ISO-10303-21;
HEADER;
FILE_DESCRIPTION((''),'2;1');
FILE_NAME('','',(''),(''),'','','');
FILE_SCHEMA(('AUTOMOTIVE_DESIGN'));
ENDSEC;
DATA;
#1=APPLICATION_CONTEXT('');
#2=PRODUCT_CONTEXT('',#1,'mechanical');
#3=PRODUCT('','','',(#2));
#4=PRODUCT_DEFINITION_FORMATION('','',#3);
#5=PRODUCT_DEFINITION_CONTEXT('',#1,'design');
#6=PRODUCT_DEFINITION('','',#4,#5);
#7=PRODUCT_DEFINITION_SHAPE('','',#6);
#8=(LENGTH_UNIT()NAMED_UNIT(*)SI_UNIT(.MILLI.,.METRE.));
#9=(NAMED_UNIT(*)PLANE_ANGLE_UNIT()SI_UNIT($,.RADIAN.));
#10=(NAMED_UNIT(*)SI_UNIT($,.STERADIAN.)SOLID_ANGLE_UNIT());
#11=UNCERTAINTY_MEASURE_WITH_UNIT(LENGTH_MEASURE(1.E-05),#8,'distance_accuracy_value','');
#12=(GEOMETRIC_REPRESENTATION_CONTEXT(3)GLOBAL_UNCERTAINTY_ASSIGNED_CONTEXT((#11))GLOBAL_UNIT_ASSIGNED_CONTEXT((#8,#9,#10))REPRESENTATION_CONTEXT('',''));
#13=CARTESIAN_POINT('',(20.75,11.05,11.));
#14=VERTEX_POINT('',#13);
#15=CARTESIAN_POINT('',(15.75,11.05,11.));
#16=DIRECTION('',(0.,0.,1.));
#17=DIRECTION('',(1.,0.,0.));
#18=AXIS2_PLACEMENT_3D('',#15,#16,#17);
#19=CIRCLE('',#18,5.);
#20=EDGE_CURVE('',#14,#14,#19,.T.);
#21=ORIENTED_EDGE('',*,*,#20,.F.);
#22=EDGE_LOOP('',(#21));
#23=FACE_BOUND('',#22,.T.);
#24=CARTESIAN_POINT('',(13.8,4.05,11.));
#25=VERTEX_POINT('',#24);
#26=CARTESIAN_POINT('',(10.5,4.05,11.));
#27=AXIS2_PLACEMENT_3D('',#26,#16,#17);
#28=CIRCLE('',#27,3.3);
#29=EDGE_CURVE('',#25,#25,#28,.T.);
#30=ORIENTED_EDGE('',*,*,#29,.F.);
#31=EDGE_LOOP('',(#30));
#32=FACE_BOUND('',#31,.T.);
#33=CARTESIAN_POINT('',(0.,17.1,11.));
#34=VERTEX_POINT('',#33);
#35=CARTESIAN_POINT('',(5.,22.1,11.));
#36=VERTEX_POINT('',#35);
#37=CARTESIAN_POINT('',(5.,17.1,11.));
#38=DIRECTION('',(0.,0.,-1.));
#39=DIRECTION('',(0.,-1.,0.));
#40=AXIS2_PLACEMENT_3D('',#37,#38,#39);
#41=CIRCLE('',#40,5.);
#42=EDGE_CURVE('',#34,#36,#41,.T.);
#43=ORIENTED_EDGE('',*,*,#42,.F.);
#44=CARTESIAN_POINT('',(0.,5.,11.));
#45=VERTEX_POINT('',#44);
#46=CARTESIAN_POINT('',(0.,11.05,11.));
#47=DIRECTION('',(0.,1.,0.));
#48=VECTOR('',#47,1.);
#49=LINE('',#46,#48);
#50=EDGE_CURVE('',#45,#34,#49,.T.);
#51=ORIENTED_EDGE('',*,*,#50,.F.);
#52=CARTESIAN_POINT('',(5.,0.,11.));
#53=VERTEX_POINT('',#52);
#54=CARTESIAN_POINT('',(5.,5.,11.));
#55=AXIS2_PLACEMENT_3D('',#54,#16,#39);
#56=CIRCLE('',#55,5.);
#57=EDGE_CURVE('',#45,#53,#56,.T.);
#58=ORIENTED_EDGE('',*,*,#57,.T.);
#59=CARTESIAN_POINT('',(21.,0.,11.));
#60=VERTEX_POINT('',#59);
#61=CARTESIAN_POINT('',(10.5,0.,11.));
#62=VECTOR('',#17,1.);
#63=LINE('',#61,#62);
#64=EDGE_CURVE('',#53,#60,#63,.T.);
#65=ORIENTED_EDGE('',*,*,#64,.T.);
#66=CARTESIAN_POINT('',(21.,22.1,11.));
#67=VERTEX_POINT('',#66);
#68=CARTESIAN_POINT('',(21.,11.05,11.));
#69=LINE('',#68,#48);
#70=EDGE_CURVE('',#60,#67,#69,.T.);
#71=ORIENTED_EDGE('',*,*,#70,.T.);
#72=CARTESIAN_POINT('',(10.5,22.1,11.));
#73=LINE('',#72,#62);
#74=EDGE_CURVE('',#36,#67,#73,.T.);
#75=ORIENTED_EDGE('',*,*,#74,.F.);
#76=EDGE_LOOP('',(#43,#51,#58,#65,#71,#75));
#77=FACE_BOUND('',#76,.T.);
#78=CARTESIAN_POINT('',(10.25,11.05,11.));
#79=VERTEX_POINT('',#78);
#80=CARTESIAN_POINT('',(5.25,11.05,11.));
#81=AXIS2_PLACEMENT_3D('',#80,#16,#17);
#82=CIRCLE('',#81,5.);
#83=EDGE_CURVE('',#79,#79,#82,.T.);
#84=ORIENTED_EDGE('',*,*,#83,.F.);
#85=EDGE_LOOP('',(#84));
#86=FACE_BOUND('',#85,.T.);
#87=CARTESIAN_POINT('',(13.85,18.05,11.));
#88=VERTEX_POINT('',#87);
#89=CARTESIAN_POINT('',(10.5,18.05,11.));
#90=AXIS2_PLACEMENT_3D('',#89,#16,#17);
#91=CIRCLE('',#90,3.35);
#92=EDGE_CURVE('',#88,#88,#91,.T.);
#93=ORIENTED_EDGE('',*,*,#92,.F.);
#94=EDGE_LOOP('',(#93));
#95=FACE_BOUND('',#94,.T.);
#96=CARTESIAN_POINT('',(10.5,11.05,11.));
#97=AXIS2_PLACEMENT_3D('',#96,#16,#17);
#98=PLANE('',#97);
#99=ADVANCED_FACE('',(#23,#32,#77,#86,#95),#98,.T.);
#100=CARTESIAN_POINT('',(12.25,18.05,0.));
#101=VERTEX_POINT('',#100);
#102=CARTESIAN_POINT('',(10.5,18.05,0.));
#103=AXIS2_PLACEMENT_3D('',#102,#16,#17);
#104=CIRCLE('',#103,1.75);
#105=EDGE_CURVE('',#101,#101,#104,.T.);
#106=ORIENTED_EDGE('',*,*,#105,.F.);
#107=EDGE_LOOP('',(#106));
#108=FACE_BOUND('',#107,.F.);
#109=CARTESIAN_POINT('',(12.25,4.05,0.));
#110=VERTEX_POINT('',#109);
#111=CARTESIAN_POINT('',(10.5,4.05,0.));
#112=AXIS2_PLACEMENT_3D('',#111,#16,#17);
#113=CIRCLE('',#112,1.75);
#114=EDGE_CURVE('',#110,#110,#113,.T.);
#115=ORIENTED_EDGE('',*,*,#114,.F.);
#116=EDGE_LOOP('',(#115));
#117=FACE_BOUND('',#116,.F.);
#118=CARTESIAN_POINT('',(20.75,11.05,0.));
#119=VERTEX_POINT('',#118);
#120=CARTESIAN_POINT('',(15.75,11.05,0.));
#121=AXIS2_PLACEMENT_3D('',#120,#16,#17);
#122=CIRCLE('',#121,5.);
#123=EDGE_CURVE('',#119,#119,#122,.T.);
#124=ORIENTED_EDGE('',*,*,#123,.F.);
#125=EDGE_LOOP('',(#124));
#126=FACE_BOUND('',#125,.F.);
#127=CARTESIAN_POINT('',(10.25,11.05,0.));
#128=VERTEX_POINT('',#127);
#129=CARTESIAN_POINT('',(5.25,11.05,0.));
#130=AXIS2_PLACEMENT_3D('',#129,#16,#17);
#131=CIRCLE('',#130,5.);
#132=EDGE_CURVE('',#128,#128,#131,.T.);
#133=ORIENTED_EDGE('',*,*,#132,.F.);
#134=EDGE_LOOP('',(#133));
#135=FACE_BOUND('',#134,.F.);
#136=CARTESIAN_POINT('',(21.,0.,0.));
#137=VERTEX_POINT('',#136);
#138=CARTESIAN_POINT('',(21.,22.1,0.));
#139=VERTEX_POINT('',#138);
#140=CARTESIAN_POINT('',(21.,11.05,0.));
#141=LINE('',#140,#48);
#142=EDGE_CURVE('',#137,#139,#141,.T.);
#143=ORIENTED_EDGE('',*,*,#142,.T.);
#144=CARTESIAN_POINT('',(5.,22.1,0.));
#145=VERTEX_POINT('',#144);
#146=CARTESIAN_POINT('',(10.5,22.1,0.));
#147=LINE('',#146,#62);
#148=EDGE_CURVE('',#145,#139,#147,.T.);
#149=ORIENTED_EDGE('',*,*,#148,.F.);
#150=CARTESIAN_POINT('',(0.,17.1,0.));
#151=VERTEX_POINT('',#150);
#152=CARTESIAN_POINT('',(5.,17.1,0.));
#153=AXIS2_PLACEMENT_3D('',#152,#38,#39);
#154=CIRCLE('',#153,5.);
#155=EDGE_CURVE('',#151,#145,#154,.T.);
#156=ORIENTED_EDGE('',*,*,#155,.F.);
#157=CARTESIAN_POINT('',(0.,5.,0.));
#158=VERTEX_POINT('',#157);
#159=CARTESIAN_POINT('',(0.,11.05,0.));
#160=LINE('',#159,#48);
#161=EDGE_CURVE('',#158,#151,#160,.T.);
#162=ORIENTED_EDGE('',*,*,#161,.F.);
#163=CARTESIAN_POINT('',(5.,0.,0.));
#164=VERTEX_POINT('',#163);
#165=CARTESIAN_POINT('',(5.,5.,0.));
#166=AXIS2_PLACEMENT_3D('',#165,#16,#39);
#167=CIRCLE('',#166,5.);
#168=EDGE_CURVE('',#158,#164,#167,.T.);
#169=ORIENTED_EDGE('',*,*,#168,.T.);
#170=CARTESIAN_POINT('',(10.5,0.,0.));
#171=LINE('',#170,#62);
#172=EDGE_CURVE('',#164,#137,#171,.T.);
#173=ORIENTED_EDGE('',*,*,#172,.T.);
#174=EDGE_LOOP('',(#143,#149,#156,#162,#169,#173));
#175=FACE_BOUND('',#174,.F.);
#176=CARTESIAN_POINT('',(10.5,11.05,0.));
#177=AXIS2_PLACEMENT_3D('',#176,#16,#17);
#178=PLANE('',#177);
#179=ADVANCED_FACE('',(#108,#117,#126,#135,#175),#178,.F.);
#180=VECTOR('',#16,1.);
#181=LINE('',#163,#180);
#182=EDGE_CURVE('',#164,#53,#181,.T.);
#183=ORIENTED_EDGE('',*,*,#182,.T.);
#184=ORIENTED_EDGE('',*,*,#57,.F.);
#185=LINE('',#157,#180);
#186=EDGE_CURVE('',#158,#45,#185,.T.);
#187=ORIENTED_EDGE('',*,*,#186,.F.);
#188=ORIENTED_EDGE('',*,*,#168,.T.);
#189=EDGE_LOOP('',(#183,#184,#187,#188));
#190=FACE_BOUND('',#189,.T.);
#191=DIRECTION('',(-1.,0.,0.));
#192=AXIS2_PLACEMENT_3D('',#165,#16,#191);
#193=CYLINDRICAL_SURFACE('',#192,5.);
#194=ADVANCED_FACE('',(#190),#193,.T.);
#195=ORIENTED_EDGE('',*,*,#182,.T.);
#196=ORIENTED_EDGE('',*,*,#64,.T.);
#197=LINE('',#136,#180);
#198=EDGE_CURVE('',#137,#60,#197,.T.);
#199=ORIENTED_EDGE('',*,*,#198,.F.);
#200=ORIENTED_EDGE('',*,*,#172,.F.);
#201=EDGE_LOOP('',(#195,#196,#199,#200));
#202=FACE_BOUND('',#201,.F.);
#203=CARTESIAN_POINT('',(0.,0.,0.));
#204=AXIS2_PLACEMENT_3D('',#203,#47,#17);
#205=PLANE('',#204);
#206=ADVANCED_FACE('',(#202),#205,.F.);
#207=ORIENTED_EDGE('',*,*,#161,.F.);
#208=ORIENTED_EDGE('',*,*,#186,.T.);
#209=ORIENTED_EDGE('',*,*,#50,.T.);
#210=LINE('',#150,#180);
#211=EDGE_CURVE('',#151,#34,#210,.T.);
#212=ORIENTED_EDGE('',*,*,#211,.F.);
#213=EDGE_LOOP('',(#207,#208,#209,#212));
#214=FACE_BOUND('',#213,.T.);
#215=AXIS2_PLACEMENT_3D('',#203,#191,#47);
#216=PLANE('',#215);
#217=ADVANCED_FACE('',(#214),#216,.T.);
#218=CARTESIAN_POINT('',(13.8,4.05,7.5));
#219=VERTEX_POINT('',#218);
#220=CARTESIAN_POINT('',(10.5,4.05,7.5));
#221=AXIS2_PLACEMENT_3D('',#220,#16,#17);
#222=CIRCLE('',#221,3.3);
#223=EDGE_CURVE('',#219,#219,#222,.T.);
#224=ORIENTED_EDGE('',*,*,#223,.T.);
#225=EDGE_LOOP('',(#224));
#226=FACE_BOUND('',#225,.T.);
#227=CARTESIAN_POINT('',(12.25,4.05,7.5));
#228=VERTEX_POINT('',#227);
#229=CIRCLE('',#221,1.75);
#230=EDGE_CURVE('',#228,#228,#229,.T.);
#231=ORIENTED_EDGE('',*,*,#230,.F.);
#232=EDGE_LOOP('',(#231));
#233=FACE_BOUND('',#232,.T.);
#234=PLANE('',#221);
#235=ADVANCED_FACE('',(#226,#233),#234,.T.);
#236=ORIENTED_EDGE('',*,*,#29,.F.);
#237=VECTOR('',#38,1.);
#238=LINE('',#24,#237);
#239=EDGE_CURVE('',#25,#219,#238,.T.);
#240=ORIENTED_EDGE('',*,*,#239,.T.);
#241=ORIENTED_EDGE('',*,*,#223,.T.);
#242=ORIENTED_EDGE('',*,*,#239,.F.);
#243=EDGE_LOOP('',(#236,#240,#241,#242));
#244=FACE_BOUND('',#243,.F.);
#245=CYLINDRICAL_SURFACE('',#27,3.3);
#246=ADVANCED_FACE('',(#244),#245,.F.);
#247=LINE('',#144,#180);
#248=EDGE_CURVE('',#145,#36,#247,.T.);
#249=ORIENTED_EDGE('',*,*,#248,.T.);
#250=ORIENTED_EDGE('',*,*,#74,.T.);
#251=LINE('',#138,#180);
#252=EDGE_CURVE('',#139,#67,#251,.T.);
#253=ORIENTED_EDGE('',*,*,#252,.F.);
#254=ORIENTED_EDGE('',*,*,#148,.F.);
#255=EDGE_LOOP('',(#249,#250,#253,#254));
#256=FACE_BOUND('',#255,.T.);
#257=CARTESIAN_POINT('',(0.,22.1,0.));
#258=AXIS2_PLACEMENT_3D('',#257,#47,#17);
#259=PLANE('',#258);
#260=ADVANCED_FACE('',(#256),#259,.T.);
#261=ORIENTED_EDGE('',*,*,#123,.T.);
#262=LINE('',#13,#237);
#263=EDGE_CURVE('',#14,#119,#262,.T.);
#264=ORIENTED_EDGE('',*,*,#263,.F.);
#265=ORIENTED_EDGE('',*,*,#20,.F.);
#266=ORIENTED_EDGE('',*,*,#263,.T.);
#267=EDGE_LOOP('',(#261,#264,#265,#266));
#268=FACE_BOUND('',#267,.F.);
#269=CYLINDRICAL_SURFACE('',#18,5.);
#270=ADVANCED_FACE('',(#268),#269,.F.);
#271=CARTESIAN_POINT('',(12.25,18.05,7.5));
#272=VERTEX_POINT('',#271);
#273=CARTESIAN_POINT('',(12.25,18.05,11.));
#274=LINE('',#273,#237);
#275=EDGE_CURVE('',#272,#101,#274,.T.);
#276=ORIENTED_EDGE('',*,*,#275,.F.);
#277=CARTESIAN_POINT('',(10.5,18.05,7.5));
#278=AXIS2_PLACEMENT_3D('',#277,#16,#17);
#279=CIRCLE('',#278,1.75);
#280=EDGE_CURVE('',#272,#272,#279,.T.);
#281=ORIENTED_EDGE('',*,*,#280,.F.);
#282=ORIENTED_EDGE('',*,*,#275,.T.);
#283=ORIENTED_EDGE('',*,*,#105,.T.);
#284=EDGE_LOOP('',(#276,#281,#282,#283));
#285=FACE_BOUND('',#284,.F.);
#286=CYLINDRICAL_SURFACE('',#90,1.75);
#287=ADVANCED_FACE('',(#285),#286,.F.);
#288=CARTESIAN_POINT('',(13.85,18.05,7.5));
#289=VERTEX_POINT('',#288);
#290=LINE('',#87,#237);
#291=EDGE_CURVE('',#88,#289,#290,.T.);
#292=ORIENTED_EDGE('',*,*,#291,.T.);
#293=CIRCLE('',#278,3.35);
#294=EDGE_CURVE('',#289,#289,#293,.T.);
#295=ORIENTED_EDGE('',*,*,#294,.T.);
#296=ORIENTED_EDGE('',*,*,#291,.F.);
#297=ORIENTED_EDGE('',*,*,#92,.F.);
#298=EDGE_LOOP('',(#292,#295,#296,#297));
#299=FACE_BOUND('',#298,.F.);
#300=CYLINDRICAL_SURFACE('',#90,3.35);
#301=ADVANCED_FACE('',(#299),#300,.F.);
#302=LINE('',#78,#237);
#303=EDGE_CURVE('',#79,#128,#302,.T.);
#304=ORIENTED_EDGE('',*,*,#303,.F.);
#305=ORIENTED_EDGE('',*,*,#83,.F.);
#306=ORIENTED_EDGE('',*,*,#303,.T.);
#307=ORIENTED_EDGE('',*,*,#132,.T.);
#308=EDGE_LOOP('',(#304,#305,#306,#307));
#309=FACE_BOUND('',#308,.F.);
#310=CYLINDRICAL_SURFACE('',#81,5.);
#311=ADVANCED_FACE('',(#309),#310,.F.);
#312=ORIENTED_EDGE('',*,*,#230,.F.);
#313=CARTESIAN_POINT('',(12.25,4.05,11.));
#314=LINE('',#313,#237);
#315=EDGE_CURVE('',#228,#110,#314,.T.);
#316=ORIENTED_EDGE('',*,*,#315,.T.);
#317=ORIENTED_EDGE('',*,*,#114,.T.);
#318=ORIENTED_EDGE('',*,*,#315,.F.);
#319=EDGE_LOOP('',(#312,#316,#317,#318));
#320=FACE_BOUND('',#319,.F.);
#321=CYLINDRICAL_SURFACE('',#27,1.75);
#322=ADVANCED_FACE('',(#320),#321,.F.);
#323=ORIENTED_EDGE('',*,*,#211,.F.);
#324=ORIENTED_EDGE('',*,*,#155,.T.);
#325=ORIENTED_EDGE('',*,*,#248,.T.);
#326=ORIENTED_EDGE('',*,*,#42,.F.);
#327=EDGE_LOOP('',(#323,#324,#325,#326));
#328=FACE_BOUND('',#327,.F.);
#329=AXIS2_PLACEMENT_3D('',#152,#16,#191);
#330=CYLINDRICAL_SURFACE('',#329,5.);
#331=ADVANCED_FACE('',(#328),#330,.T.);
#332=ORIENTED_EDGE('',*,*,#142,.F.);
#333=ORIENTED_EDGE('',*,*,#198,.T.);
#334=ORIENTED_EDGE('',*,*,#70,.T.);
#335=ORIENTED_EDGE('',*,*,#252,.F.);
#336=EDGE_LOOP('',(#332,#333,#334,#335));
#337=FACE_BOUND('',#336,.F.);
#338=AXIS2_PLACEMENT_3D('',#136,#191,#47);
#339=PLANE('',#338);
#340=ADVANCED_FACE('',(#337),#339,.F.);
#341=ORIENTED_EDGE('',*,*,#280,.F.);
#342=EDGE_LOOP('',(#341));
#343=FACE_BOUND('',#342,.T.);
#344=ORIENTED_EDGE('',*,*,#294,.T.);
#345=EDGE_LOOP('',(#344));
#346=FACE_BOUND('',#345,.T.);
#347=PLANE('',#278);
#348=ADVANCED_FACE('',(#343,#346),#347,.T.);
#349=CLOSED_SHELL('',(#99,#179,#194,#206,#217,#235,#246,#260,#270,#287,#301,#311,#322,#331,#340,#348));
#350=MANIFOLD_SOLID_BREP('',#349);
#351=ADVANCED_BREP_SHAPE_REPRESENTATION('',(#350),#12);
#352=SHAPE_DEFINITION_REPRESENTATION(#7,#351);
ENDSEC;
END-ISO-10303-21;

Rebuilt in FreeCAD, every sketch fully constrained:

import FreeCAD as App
import Part
import Sketcher


def edges_at(feature, points):
    """Names of the edges that pass closest to the given points."""
    edges = feature.Shape.Edges
    near = lambda p: min(range(len(edges)), key=lambda i: edges[i].distToShape(Part.Vertex(*p))[0])
    return sorted({f"Edge{near(p) + 1}" for p in points})

doc = App.newDocument("Part")
body = doc.addObject("PartDesign::Body", "Body")

sketch1 = body.newObject("Sketcher::SketchObject", "Sketch")
sketch1.AttachmentSupport = (doc.getObject("XY_Plane"), [""])
sketch1.MapMode = "FlatFace"
sketch1.addGeometry([
    Part.LineSegment(App.Vector(0, 22, 0), App.Vector(0, 0, 0)),
    Part.LineSegment(App.Vector(0, 0, 0), App.Vector(21, 0, 0)),
    Part.LineSegment(App.Vector(21, 0, 0), App.Vector(21, 22, 0)),
    Part.LineSegment(App.Vector(21, 22, 0), App.Vector(0, 22, 0)),
], False)
sketch1.addConstraint([
    Sketcher.Constraint("Coincident", 0, 2, 1, 1),
    Sketcher.Constraint("Coincident", 1, 2, 2, 1),
    Sketcher.Constraint("Coincident", 2, 2, 3, 1),
    Sketcher.Constraint("Coincident", 3, 2, 0, 1),
    Sketcher.Constraint("Vertical", 0),
    Sketcher.Constraint("Horizontal", 1),
    Sketcher.Constraint("Vertical", 2),
    Sketcher.Constraint("Horizontal", 3),
    Sketcher.Constraint("Coincident", 0, 2, -1, 1),
    Sketcher.Constraint("DistanceX", 1, 1, 1, 2, 21.0),
    Sketcher.Constraint("DistanceY", 0, 2, 0, 1, 22.1),
])
pad1 = body.newObject("PartDesign::Pad", "Pad")
pad1.Profile = sketch1
pad1.Length = 11

sketch2 = body.newObject("Sketcher::SketchObject", "Sketch001")
sketch2.AttachmentSupport = (doc.getObject("XY_Plane"), [""])
sketch2.MapMode = "FlatFace"
sketch2.AttachmentOffset = App.Placement(App.Vector(0, 0, 11), App.Rotation())
sketch2.addGeometry([
    Part.Circle(App.Vector(10.5, 18.1, 0), App.Vector(0, 0, 1), 1.8),
    Part.Circle(App.Vector(10.5, 4, 0), App.Vector(0, 0, 1), 1.8),
], False)
sketch2.addConstraint([
    Sketcher.Constraint("Equal", 0, 1),
    Sketcher.Constraint("Vertical", 0, 3, 1, 3),
    Sketcher.Constraint("Diameter", 0, 3.5),
    Sketcher.Constraint("DistanceY", 1, 3, 0, 3, 14.0),
    Sketcher.Constraint("DistanceX", -1, 1, 0, 3, 10.5),
    Sketcher.Constraint("DistanceY", -1, 1, 0, 3, 18.05),
])
pocket1 = body.newObject("PartDesign::Pocket", "Pocket")
pocket1.Profile = sketch2
pocket1.Length = 25

sketch3 = body.newObject("Sketcher::SketchObject", "Sketch002")
sketch3.AttachmentSupport = (doc.getObject("XY_Plane"), [""])
sketch3.MapMode = "FlatFace"
sketch3.AttachmentOffset = App.Placement(App.Vector(0, 0, 11), App.Rotation())
sketch3.addGeometry([
    Part.Circle(App.Vector(10.5, 18.1, 0), App.Vector(0, 0, 1), 3.4),
    Part.Circle(App.Vector(10.5, 18.1, 0), App.Vector(0, 0, 1), 1.8),
    Part.Circle(App.Vector(10.5, 4, 0), App.Vector(0, 0, 1), 3.3),
    Part.Circle(App.Vector(10.5, 4, 0), App.Vector(0, 0, 1), 1.8),
], False)
sketch3.addConstraint([
    Sketcher.Constraint("Coincident", 1, 3, 0, 3),
    Sketcher.Constraint("Coincident", 3, 3, 2, 3),
    Sketcher.Constraint("Equal", 1, 3),
    Sketcher.Constraint("Vertical", 1, 3, 2, 3),
    Sketcher.Constraint("Diameter", 0, 6.7),
    Sketcher.Constraint("Diameter", 1, 3.5),
    Sketcher.Constraint("Diameter", 2, 6.6),
    Sketcher.Constraint("DistanceY", 2, 3, 0, 3, 14.0),
    Sketcher.Constraint("DistanceX", -1, 1, 0, 3, 10.5),
    Sketcher.Constraint("DistanceY", -1, 1, 0, 3, 18.05),
])
pocket2 = body.newObject("PartDesign::Pocket", "Pocket001")
pocket2.Profile = sketch3
pocket2.Length = 3.5
doc.recompute()

fillet = body.newObject("PartDesign::Fillet", "Fillet")
fillet.Base = (pocket2, edges_at(pocket2, [(0, 22.1, 5.5), (0, 0, 5.5)]))
fillet.Radius = 5

sketch4 = body.newObject("Sketcher::SketchObject", "Sketch003")
sketch4.AttachmentSupport = (doc.getObject("XY_Plane"), [""])
sketch4.MapMode = "FlatFace"
sketch4.AttachmentOffset = App.Placement(App.Vector(0, 0, 11), App.Rotation())
sketch4.addGeometry([
    Part.Circle(App.Vector(5, 11, 0), App.Vector(0, 0, 1), 5),
    Part.Circle(App.Vector(16, 11, 0), App.Vector(0, 0, 1), 5),
], False)
sketch4.addConstraint([
    Sketcher.Constraint("Equal", 0, 1),
    Sketcher.Constraint("Horizontal", 0, 3, 1, 3),
    Sketcher.Constraint("Diameter", 0, 10.0),
    Sketcher.Constraint("DistanceX", 0, 3, 1, 3, 10.5),
    Sketcher.Constraint("DistanceX", -1, 1, 0, 3, 5.25),
    Sketcher.Constraint("DistanceY", -1, 1, 0, 3, 11.05),
])
pocket3 = body.newObject("PartDesign::Pocket", "Pocket002")
pocket3.Profile = sketch4
pocket3.Length = 25

doc.recompute()
